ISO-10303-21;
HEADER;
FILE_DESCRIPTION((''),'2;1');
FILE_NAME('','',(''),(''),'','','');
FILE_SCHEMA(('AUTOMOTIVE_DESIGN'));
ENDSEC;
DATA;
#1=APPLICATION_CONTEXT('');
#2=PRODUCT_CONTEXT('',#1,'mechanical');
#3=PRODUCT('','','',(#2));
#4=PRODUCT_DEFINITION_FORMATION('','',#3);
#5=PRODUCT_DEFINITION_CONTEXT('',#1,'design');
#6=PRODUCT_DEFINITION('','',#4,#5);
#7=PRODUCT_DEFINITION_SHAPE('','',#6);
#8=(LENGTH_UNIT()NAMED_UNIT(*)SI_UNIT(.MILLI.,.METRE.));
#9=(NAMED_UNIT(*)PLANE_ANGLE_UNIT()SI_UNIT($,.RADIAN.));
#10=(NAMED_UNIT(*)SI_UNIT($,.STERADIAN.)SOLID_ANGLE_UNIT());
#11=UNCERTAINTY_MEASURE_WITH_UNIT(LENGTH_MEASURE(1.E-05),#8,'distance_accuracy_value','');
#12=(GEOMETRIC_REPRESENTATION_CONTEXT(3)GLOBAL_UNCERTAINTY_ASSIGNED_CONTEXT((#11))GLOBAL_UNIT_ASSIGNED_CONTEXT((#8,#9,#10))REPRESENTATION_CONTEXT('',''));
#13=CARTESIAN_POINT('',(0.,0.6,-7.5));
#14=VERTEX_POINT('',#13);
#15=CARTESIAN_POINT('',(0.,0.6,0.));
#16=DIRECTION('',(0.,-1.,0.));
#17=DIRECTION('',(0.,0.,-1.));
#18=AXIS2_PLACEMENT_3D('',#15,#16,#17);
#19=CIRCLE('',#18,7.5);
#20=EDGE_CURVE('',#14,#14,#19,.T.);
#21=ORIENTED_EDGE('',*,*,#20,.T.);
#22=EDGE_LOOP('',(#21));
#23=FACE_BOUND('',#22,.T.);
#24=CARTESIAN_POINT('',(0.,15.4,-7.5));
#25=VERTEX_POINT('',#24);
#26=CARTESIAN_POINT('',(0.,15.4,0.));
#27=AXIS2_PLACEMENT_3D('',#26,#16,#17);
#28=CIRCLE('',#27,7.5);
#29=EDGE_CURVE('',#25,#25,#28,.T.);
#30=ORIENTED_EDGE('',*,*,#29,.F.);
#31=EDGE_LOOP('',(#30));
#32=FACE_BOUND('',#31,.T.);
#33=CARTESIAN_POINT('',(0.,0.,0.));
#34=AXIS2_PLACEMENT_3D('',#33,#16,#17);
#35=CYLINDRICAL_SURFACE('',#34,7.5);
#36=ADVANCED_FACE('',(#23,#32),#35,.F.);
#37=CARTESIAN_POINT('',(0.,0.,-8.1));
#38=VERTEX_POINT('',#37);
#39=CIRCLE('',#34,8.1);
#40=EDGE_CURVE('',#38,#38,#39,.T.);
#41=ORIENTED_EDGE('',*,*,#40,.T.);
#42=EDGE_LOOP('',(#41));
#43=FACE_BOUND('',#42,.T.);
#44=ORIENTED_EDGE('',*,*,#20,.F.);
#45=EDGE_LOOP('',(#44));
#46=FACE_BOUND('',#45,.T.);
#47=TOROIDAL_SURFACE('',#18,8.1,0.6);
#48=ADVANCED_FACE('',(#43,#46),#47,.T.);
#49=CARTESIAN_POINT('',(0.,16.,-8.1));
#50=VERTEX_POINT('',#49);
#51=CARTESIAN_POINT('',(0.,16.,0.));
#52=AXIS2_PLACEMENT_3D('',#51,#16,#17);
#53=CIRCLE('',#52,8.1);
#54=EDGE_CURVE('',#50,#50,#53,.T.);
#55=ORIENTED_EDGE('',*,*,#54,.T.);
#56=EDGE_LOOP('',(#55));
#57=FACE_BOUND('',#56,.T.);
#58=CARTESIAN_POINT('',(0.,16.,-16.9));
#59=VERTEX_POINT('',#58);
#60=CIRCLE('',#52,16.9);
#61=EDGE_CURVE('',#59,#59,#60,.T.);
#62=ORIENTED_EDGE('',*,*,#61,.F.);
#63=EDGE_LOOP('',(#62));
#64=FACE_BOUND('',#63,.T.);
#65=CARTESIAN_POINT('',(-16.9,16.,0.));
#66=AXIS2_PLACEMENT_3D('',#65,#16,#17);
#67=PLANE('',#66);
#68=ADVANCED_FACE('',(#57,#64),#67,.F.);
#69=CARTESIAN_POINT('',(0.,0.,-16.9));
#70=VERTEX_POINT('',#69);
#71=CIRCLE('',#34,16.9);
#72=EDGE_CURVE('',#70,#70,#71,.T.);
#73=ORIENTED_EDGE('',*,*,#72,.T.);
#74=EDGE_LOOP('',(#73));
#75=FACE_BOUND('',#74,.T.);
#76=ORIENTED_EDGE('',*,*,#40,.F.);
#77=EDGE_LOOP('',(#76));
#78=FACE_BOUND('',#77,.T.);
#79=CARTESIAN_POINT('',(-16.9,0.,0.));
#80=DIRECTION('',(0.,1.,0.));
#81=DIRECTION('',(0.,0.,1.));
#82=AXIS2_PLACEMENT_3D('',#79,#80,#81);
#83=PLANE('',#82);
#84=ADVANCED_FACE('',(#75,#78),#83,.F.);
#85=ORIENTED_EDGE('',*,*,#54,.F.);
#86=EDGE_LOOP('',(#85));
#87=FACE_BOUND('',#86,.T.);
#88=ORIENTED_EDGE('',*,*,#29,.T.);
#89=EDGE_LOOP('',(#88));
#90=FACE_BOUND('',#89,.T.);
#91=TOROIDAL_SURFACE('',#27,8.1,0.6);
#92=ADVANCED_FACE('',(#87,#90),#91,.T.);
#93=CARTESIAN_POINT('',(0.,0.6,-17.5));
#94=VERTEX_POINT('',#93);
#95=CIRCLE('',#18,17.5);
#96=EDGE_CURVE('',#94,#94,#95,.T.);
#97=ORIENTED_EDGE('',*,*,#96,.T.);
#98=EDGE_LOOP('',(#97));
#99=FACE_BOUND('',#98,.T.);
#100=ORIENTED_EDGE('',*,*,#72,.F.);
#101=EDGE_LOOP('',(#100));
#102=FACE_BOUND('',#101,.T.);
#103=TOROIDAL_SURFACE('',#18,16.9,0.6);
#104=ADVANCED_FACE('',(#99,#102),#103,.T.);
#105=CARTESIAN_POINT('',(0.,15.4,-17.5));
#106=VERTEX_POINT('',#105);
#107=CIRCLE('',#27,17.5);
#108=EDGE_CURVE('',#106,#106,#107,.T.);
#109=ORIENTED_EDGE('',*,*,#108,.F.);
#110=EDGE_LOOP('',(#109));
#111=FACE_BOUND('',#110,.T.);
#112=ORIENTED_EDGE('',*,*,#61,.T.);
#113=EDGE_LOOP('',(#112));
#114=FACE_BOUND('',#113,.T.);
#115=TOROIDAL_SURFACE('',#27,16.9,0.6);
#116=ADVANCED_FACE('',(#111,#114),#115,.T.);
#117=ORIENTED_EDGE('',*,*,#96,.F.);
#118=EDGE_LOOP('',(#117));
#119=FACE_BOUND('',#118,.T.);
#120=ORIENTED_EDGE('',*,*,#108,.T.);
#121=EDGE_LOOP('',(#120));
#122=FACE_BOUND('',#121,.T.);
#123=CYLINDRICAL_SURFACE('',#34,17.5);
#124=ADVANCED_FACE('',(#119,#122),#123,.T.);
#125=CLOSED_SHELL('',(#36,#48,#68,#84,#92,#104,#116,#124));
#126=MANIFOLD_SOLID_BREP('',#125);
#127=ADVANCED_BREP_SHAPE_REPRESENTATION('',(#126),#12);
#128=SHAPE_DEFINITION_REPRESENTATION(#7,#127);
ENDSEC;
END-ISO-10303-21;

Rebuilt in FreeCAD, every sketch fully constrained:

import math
import FreeCAD as App
import Part
import Sketcher

V = App.Vector
Q = App.Units.Quantity

doc = App.newDocument("Part")
body = doc.addObject("PartDesign::Body", "Body")

sketch1 = body.newObject("Sketcher::SketchObject", "Sketch")
sketch1.AttachmentSupport = (doc.getObject("XY_Plane"), [""])
sketch1.MapMode = "FlatFace"
sketch1.addGeometry([
    Part.LineSegment(V(-17.5, 15.4, 0), V(-17.5, 0.6, 0)),
    Part.ArcOfCircle(Part.Circle(V(-16.9, 0.6, 0), V(0, 0, 1), 0.6), math.radians(180), math.radians(270)),
    Part.LineSegment(V(-16.9, 0, 0), V(-8.1, 0, 0)),
    Part.ArcOfCircle(Part.Circle(V(-8.1, 0.6, 0), V(0, 0, 1), 0.6), math.radians(-90), math.radians(0)),
    Part.LineSegment(V(-7.5, 0.6, 0), V(-7.5, 15.4, 0)),
    Part.ArcOfCircle(Part.Circle(V(-8.1, 15.4, 0), V(0, 0, 1), 0.6), math.radians(0), math.radians(90)),
    Part.LineSegment(V(-8.1, 16, 0), V(-16.9, 16, 0)),
    Part.ArcOfCircle(Part.Circle(V(-16.9, 15.4, 0), V(0, 0, 1), 0.6), math.radians(90), math.radians(180)),
], False)
sketch1.addConstraint([
    Sketcher.Constraint("Tangent", 0, 2, 1, 1),
    Sketcher.Constraint("Tangent", 1, 2, 2, 1),
    Sketcher.Constraint("Tangent", 2, 2, 3, 1),
    Sketcher.Constraint("Tangent", 3, 2, 4, 1),
    Sketcher.Constraint("Tangent", 4, 2, 5, 1),
    Sketcher.Constraint("Tangent", 5, 2, 6, 1),
    Sketcher.Constraint("Tangent", 6, 2, 7, 1),
    Sketcher.Constraint("Tangent", 7, 2, 0, 1),
    Sketcher.Constraint("Vertical", 0),
    Sketcher.Constraint("Horizontal", 2),
    Sketcher.Constraint("Vertical", 4),
    Sketcher.Constraint("Horizontal", 6),
    Sketcher.Constraint("Equal", 1, 3),
    Sketcher.Constraint("Equal", 3, 5),
    Sketcher.Constraint("Equal", 5, 7),
    Sketcher.Constraint("PointOnObject", 1, 2, -1),
    Sketcher.Constraint("Radius", 1, Q("0.6 mm")),
    Sketcher.Constraint("DistanceX", 2, 1, 2, 2, Q("8.8 mm")),
    Sketcher.Constraint("DistanceY", 0, 2, 0, 1, Q("14.8 mm")),
    Sketcher.Constraint("DistanceX", 1, 3, -1, 1, Q("16.9 mm")),
])
revolution = body.newObject("PartDesign::Revolution", "Revolution")
revolution.Profile = sketch1
revolution.ReferenceAxis = (sketch1, ["V_Axis"])
revolution.Angle = 360

doc.recompute()
